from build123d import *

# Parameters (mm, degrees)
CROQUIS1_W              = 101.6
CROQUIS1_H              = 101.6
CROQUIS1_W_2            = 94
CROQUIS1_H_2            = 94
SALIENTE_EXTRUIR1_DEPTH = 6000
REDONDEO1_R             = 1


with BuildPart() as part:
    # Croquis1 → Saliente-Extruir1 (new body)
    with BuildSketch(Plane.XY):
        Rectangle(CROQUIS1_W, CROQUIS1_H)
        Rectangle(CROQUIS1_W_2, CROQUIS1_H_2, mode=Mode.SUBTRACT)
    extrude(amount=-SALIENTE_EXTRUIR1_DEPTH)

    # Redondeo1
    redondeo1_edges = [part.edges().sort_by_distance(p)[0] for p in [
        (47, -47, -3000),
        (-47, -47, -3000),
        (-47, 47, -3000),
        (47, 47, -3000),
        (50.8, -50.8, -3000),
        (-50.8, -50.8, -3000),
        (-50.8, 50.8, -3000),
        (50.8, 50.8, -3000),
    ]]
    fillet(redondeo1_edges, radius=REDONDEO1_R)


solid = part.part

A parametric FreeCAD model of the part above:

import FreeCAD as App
import Part
import Sketcher

V = App.Vector
Q = App.Units.Quantity


def edges_at(feature, points):
    """Names of the edges that pass closest to the given points."""
    edges = feature.Shape.Edges
    near = lambda p: min(range(len(edges)), key=lambda i: edges[i].distToShape(Part.Vertex(*p))[0])
    return sorted({f"Edge{near(p) + 1}" for p in points})

doc = App.newDocument("Part")
body = doc.addObject("PartDesign::Body", "Body")

# Sketch on XY plane
sketch1 = body.newObject("Sketcher::SketchObject", "Sketch")
sketch1.AttachmentSupport = (doc.getObject("XY_Plane"), [""])
sketch1.MapMode = "FlatFace"
sketch1.addGeometry([
    Part.LineSegment(V(-51, 51, 0), V(-51, -51, 0)),  # 0
    Part.LineSegment(V(-51, -51, 0), V(51, -51, 0)),  # 1
    Part.LineSegment(V(51, -51, 0), V(51, 51, 0)),  # 2
    Part.LineSegment(V(51, 51, 0), V(-51, 51, 0)),  # 3
    Part.LineSegment(V(47, -47, 0), V(-47, -47, 0)),  # 4
    Part.LineSegment(V(-47, -47, 0), V(-47, 47, 0)),  # 5
    Part.LineSegment(V(-47, 47, 0), V(47, 47, 0)),  # 6
    Part.LineSegment(V(47, 47, 0), V(47, -47, 0)),  # 7
], False)
sketch1.addConstraint([
    Sketcher.Constraint("Coincident", 0, 2, 1, 1),
    Sketcher.Constraint("Coincident", 1, 2, 2, 1),
    Sketcher.Constraint("Coincident", 2, 2, 3, 1),
    Sketcher.Constraint("Coincident", 3, 2, 0, 1),
    Sketcher.Constraint("Coincident", 4, 2, 5, 1),
    Sketcher.Constraint("Coincident", 5, 2, 6, 1),
    Sketcher.Constraint("Coincident", 6, 2, 7, 1),
    Sketcher.Constraint("Coincident", 7, 2, 4, 1),
    Sketcher.Constraint("Vertical", 0),
    Sketcher.Constraint("Horizontal", 1),
    Sketcher.Constraint("Vertical", 2),
    Sketcher.Constraint("Horizontal", 3),
    Sketcher.Constraint("Horizontal", 4),
    Sketcher.Constraint("Vertical", 5),
    Sketcher.Constraint("Horizontal", 6),
    Sketcher.Constraint("Vertical", 7),
    Sketcher.Constraint("Symmetric", 0, 2, 2, 2, -1, 1),
    Sketcher.Constraint("Symmetric", 4, 2, 6, 2, -1, 1),
    Sketcher.Constraint("Equal", 3, 0),
    Sketcher.Constraint("Equal", 6, 5),
    Sketcher.Constraint("DistanceX", 4, 2, 4, 1, Q("94 mm")),
    Sketcher.Constraint("DistanceX", 1, 1, 1, 2, Q("101.6 mm")),
])
pad1 = body.newObject("PartDesign::Pad", "Pad")
pad1.Profile = sketch1
pad1.Length = 6000
pad1.Reversed = True
doc.recompute()

fillet = body.newObject("PartDesign::Fillet", "Fillet")
fillet.Base = (pad1, edges_at(pad1, [
    (47, -47, -3000),
    (-47, -47, -3000),
    (-47, 47, -3000),
    (47, 47, -3000),
    (50.8, -50.8, -3000),
    (-50.8, -50.8, -3000),
    (-50.8, 50.8, -3000),
    (50.8, 50.8, -3000),
]))
fillet.Radius = 1

doc.recompute()
